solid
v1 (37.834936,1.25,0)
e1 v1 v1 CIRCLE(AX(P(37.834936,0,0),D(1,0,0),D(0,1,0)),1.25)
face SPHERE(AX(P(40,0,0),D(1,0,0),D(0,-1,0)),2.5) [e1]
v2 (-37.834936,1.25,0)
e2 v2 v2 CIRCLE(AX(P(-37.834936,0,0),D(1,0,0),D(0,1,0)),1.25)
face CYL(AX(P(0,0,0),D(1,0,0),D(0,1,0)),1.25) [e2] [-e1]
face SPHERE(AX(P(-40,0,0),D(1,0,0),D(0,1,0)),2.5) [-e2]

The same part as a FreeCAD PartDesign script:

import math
import FreeCAD as App
import Part
import Sketcher
from FreeCAD import Vector

doc = App.newDocument("Part")
body = doc.addObject("PartDesign::Body", "Body")

sketch1 = body.newObject("Sketcher::SketchObject", "Sketch")
sketch1.AttachmentSupport = (doc.getObject("XY_Plane"), [""])
sketch1.MapMode = "FlatFace"
sketch1.addGeometry([
    Part.LineSegment(Vector(-42.5, 0, 0), Vector(42.5, 0, 0)),
    Part.ArcOfCircle(Part.Circle(Vector(40, 0, 0), Vector(0, 0, 1), 2.5), math.radians(0), math.radians(150)),
    Part.LineSegment(Vector(37.8, 1.2, 0), Vector(-37.8, 1.2, 0)),
    Part.ArcOfCircle(Part.Circle(Vector(-40, 0, 0), Vector(0, 0, 1), 2.5), math.radians(30), math.radians(180)),
], False)
sketch1.addConstraint([
    Sketcher.Constraint("Coincident", 0, 2, 1, 1),
    Sketcher.Constraint("Coincident", 1, 2, 2, 1),
    Sketcher.Constraint("Coincident", 2, 2, 3, 1),
    Sketcher.Constraint("Coincident", 3, 2, 0, 1),
    Sketcher.Constraint("Horizontal", 0),
    Sketcher.Constraint("Horizontal", 2),
    Sketcher.Constraint("Equal", 1, 3),
    Sketcher.Constraint("Symmetric", 1, 3, 3, 3, -1, 1),
    Sketcher.Constraint("PointOnObject", 1, 3, -1),
    Sketcher.Constraint("PointOnObject", 0, 2, -1),
    Sketcher.Constraint("Radius", 1, 2.5),
    Sketcher.Constraint("DistanceX", 0, 1, 0, 2, 85.0),
    Sketcher.Constraint("DistanceY", -1, 1, 1, 2, 1.25),
])
revolution = body.newObject("PartDesign::Revolution", "Revolution")
revolution.Profile = sketch1
revolution.ReferenceAxis = (sketch1, ["H_Axis"])
revolution.Angle = 360

doc.recompute()
